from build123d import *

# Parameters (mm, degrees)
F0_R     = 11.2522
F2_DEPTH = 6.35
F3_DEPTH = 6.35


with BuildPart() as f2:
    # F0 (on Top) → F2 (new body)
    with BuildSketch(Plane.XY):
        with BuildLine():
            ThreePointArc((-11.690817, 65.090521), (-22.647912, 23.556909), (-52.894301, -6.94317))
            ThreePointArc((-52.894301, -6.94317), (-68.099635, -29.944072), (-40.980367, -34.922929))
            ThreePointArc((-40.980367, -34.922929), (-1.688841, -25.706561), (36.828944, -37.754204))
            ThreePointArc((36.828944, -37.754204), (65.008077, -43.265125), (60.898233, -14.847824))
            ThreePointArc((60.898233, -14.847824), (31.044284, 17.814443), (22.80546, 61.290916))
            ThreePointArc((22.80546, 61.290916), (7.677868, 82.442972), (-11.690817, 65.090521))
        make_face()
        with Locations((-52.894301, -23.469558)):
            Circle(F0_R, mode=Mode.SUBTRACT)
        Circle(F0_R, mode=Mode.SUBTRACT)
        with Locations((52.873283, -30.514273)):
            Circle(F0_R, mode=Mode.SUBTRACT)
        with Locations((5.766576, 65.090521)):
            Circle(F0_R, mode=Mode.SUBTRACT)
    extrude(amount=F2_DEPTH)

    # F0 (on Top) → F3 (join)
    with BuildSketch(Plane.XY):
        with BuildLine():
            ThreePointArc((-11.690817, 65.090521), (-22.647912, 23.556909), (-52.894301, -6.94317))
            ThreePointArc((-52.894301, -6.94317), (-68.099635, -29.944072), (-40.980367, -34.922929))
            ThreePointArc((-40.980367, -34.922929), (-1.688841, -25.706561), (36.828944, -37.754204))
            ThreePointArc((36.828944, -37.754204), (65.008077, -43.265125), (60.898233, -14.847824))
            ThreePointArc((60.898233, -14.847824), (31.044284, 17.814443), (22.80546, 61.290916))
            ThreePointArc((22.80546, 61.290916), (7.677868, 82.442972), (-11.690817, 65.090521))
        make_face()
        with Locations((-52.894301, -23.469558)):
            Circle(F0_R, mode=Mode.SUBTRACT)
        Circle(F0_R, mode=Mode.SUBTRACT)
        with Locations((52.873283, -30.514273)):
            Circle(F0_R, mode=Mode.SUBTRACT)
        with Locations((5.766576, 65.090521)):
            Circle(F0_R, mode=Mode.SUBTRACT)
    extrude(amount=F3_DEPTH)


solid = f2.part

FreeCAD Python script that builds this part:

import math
import FreeCAD as App
import Part
import Sketcher

V = App.Vector
Q = App.Units.Quantity

doc = App.newDocument("Part")
body = doc.addObject("PartDesign::Body", "Body")

# Sketch on XY plane
sketch1 = body.newObject("Sketcher::SketchObject", "Sketch")
sketch1.AttachmentSupport = (doc.getObject("XY_Plane"), [""])
sketch1.MapMode = "FlatFace"
sketch1.addGeometry([
    Part.ArcOfCircle(Part.Circle(V(-95, 65, 0), V(0, 0, 1), 83), math.radians(-60), math.radians(0)),  # 0
    Part.ArcOfCircle(Part.Circle(V(-53, -23, 0), V(0, 0, 1), 17), math.radians(90), math.radians(316)),  # 1
    Part.ArcOfCircle(Part.Circle(V(-4, -102, 0), V(0, 0, 1), 77), math.radians(57), math.radians(118)),  # 2
    Part.ArcOfCircle(Part.Circle(V(53, -31, 0), V(0, 0, 1), 18), math.radians(-156), math.radians(63)),  # 3
    Part.ArcOfCircle(Part.Circle(V(103, 54, 0), V(0, 0, 1), 81), math.radians(175), math.radians(238)),  # 4
    Part.ArcOfCircle(Part.Circle(V(6, 65, 0), V(0, 0, 1), 17), math.radians(-13), math.radians(180)),  # 5
    Part.Circle(V(-53, -23, 0), V(0, 0, 1), 11),  # 6
    Part.Circle(V(53, -31, 0), V(0, 0, 1), 11),  # 7
    Part.Circle(V(0, 0, 0), V(0, 0, 1), 11),  # 8
    Part.Circle(V(6, 65, 0), V(0, 0, 1), 11),  # 9
], False)
sketch1.addConstraint([
    Sketcher.Constraint("Coincident", 0, 1, 1, 1),
    Sketcher.Constraint("Coincident", 1, 2, 2, 2),
    Sketcher.Constraint("Coincident", 2, 1, 3, 1),
    Sketcher.Constraint("Coincident", 3, 2, 4, 2),
    Sketcher.Constraint("Coincident", 4, 1, 5, 1),
    Sketcher.Constraint("Coincident", 5, 2, 0, 2),
    Sketcher.Constraint("Coincident", 8, 3, -1, 1),
    Sketcher.Constraint("Coincident", 6, 3, 1, 3),
    Sketcher.Constraint("Coincident", 7, 3, 3, 3),
    Sketcher.Constraint("Coincident", 9, 3, 5, 3),
    Sketcher.Constraint("Equal", 6, 7),
    Sketcher.Constraint("Equal", 7, 8),
    Sketcher.Constraint("Equal", 8, 9),
    Sketcher.Constraint("Horizontal", 9, 3, 5, 2),
    Sketcher.Constraint("Vertical", 6, 3, 0, 1),
    Sketcher.Constraint("Diameter", 6, Q("0.886 in")),
    Sketcher.Constraint("Radius", 3, Q("0.693 in")),
    Sketcher.Constraint("Radius", 0, 83.030411),
    Sketcher.Constraint("Radius", 1, 16.526388),
    Sketcher.Constraint("Radius", 2, 76.546624),
    Sketcher.Constraint("Radius", 4, 81.014863),
    Sketcher.Constraint("Radius", 5, 17.457393),
    Sketcher.Constraint("DistanceX", 1, 3, -1, 1, 52.894301),
    Sketcher.Constraint("DistanceY", 2, 3, 1, 3, 78.733001),
    Sketcher.Constraint("DistanceX", 2, 3, 4, 3, 107.969598),
    Sketcher.Constraint("DistanceY", 1, 3, -1, 1, 23.469558),
    Sketcher.Constraint("DistanceX", -1, 1, 4, 3, 103.49727),
    Sketcher.Constraint("DistanceY", -1, 1, 5, 3, 65.090522),
    Sketcher.Constraint("DistanceX", -1, 1, 4, 1, 22.80546),
    Sketcher.Constraint("DistanceY", 1, 3, 0, 3, 88.252291),
    Sketcher.Constraint("DistanceX", 2, 3, 3, 3, 57.345612),
    Sketcher.Constraint("DistanceY", 3, 3, 4, 3, 84.577479),
])
pad1 = body.newObject("PartDesign::Pad", "Pad")
pad1.Profile = sketch1
pad1.Length = Q("0.25 in")

# Sketch on XY plane
sketch2 = body.newObject("Sketcher::SketchObject", "Sketch001")
sketch2.AttachmentSupport = (doc.getObject("XY_Plane"), [""])
sketch2.MapMode = "FlatFace"
sketch2.addGeometry([
    Part.ArcOfCircle(Part.Circle(V(-95, 65, 0), V(0, 0, 1), 83), math.radians(-60), math.radians(0)),  # 0
    Part.ArcOfCircle(Part.Circle(V(-53, -23, 0), V(0, 0, 1), 17), math.radians(90), math.radians(316)),  # 1
    Part.ArcOfCircle(Part.Circle(V(-4, -102, 0), V(0, 0, 1), 77), math.radians(57), math.radians(118)),  # 2
    Part.ArcOfCircle(Part.Circle(V(53, -31, 0), V(0, 0, 1), 18), math.radians(-156), math.radians(63)),  # 3
    Part.ArcOfCircle(Part.Circle(V(103, 54, 0), V(0, 0, 1), 81), math.radians(175), math.radians(238)),  # 4
    Part.ArcOfCircle(Part.Circle(V(6, 65, 0), V(0, 0, 1), 17), math.radians(-13), math.radians(180)),  # 5
    Part.Circle(V(-53, -23, 0), V(0, 0, 1), 11),  # 6
    Part.Circle(V(53, -31, 0), V(0, 0, 1), 11),  # 7
    Part.Circle(V(0, 0, 0), V(0, 0, 1), 11),  # 8
    Part.Circle(V(6, 65, 0), V(0, 0, 1), 11),  # 9
], False)
sketch2.addConstraint([
    Sketcher.Constraint("Coincident", 0, 1, 1, 1),
    Sketcher.Constraint("Coincident", 1, 2, 2, 2),
    Sketcher.Constraint("Coincident", 2, 1, 3, 1),
    Sketcher.Constraint("Coincident", 3, 2, 4, 2),
    Sketcher.Constraint("Coincident", 4, 1, 5, 1),
    Sketcher.Constraint("Coincident", 5, 2, 0, 2),
    Sketcher.Constraint("Coincident", 8, 3, -1, 1),
    Sketcher.Constraint("Coincident", 6, 3, 1, 3),
    Sketcher.Constraint("Coincident", 7, 3, 3, 3),
    Sketcher.Constraint("Coincident", 9, 3, 5, 3),
    Sketcher.Constraint("Equal", 6, 7),
    Sketcher.Constraint("Equal", 7, 8),
    Sketcher.Constraint("Equal", 8, 9),
    Sketcher.Constraint("Horizontal", 9, 3, 5, 2),
    Sketcher.Constraint("Vertical", 6, 3, 0, 1),
    Sketcher.Constraint("Diameter", 6, Q("0.886 in")),
    Sketcher.Constraint("Radius", 3, Q("0.693 in")),
    Sketcher.Constraint("Radius", 0, 83.030411),
    Sketcher.Constraint("Radius", 1, 16.526388),
    Sketcher.Constraint("Radius", 2, 76.546624),
    Sketcher.Constraint("Radius", 4, 81.014863),
    Sketcher.Constraint("Radius", 5, 17.457393),
    Sketcher.Constraint("DistanceX", 1, 3, -1, 1, 52.894301),
    Sketcher.Constraint("DistanceY", 2, 3, 1, 3, 78.733001),
    Sketcher.Constraint("DistanceX", 2, 3, 4, 3, 107.969598),
    Sketcher.Constraint("DistanceY", 1, 3, -1, 1, 23.469558),
    Sketcher.Constraint("DistanceX", -1, 1, 4, 3, 103.49727),
    Sketcher.Constraint("DistanceY", -1, 1, 5, 3, 65.090522),
    Sketcher.Constraint("DistanceX", -1, 1, 4, 1, 22.80546),
    Sketcher.Constraint("DistanceY", 1, 3, 0, 3, 88.252291),
    Sketcher.Constraint("DistanceX", 2, 3, 3, 3, 57.345612),
    Sketcher.Constraint("DistanceY", 3, 3, 4, 3, 84.577479),
])
pad2 = body.newObject("PartDesign::Pad", "Pad001")
pad2.Profile = sketch2
pad2.Length = Q("0.25 in")

doc.recompute()
